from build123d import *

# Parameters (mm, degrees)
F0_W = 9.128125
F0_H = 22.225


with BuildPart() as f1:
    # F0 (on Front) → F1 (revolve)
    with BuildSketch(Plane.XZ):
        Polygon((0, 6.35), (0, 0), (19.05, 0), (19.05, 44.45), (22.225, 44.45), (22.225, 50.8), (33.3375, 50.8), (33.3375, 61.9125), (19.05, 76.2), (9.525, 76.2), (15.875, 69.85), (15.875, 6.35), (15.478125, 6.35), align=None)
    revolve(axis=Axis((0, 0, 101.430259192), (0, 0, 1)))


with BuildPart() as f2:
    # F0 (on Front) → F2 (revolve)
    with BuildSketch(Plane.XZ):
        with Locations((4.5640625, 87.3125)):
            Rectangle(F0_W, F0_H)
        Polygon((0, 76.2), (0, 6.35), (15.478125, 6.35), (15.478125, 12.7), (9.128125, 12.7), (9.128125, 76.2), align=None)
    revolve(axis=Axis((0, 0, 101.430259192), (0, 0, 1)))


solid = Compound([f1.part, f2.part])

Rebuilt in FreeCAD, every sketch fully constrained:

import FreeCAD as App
import Part
import Sketcher
Q = App.Units.Quantity


def add_polygon(sketch, points):
    """Adds a closed chain of lines whose ends are joined by coincident constraints."""
    first, n = sketch.GeometryCount, len(points)
    for a, b in zip(points, points[1:] + points[:1]):
        sketch.addGeometry(Part.LineSegment(App.Vector(*a, 0), App.Vector(*b, 0)), False)
    for i in range(n):
        sketch.addConstraint(Sketcher.Constraint("Coincident", first + i, 2, first + (i + 1) % n, 1))

doc = App.newDocument("Part")
body = doc.addObject("PartDesign::Body", "Body")

# Sketch on XZ plane
sketch1 = doc.addObject("Sketcher::SketchObject", "Sketch")
body.addObject(sketch1)
sketch1.AttachmentSupport = (doc.XZ_Plane, [""])
sketch1.MapMode = "FlatFace"
add_polygon(sketch1, [(0, 6.35), (0, 0), (19.05, 0), (19.05, 44.45), (22.225, 44.45), (22.225, 50.8), (33.3375, 50.8), (33.3375, 61.9125), (19.05, 76.2), (9.525, 76.2), (15.875, 69.85), (15.875, 6.35)])  # lines 0-11
sketch1.addConstraint([
    Sketcher.Constraint("Vertical", 0),
    Sketcher.Constraint("Horizontal", 1),
    Sketcher.Constraint("Vertical", 2),
    Sketcher.Constraint("Horizontal", 3),
    Sketcher.Constraint("Vertical", 4),
    Sketcher.Constraint("Horizontal", 5),
    Sketcher.Constraint("Vertical", 6),
    Sketcher.Constraint("Horizontal", 8),
    Sketcher.Constraint("Vertical", 10),
    Sketcher.Constraint("Horizontal", 11),
    Sketcher.Constraint("Coincident", 0, 2, -1, 1),
    Sketcher.Constraint("Parallel", 7, 9),
    Sketcher.Constraint("Vertical", 2, 2, 7, 2),
    Sketcher.Constraint("Equal", 0, 4),
    Sketcher.Constraint("Equal", 5, 6),
    Sketcher.Constraint("DistanceY", 10, 2, 10, 1, Q("2.5 in")),
    Sketcher.Constraint("DistanceY", -1, 1, 4, 2, Q("2 in")),
    Sketcher.Constraint("DistanceY", -1, 1, 7, 2, Q("3 in")),
    Sketcher.Constraint("Angle", 7, Q("135 deg")),
    Sketcher.Constraint("DistanceY", 2, 2, 9, 2, Q("1 in")),
    Sketcher.Constraint("DistanceX", 1, 1, 1, 2, Q("0.75 in")),
    Sketcher.Constraint("DistanceX", 8, 2, 4, 2, Q("0.5 in")),
    Sketcher.Constraint("DistanceX", 3, 1, 3, 2, Q("0.125 in")),
])
revolution = doc.addObject("PartDesign::Revolution", "Revolution")
body.addObject(revolution)
revolution.Profile = sketch1
revolution.ReferenceAxis = (sketch1, ["V_Axis"])
revolution.Angle = 360
body2 = doc.addObject("PartDesign::Body", "Body001")

# Sketch on XZ plane
sketch2 = doc.addObject("Sketcher::SketchObject", "Sketch001")
body2.addObject(sketch2)
sketch2.AttachmentSupport = (doc.getObject("XZ_Plane001"), [""])
sketch2.MapMode = "FlatFace"
add_polygon(sketch2, [(0, 98.425), (0, 6.35), (15.478125, 6.35), (15.478125, 12.7), (9.128125, 12.7), (9.128125, 98.425)])  # lines 0-5
sketch2.addConstraint([
    Sketcher.Constraint("Vertical", 0),
    Sketcher.Constraint("Horizontal", 1),
    Sketcher.Constraint("Vertical", 2),
    Sketcher.Constraint("Horizontal", 3),
    Sketcher.Constraint("Vertical", 4),
    Sketcher.Constraint("Horizontal", 5),
    Sketcher.Constraint("PointOnObject", 0, 2, -2),
    Sketcher.Constraint("Equal", 3, 2),
    Sketcher.Constraint("DistanceX", 3, 2, 3, 1, Q("0.25 in")),
    Sketcher.Constraint("DistanceY", -1, 1, 2, 2, Q("0.5 in")),
    Sketcher.Constraint("DistanceX", 1, 1, 1, 2, Q("0.609375 in")),
    Sketcher.Constraint("DistanceY", 0, 2, 0, 1, Q("3.625 in")),
])
revolution2 = doc.addObject("PartDesign::Revolution", "Revolution001")
body2.addObject(revolution2)
revolution2.Profile = sketch2
revolution2.ReferenceAxis = (sketch2, ["V_Axis"])
revolution2.Angle = 360

doc.recompute()
